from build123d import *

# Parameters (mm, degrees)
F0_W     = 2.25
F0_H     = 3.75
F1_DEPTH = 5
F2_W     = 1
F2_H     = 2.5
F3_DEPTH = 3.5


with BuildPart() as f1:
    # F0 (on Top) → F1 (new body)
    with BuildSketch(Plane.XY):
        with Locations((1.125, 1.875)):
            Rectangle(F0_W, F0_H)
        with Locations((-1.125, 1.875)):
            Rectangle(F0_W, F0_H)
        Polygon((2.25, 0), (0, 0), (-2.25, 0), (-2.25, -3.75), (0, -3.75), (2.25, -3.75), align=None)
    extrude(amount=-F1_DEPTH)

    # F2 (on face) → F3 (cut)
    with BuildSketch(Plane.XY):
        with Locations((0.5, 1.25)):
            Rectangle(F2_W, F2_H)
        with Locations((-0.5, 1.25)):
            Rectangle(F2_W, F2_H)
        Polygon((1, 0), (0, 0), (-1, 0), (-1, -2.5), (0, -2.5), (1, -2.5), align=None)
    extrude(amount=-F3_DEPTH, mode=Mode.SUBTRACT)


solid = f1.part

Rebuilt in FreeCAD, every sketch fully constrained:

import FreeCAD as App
import Part
import Sketcher

doc = App.newDocument("Part")
params = doc.addObject("Spreadsheet::Sheet", "Params")
for row, (alias, value) in enumerate([
    ("sketch1_width", "4.5 mm"),
    ("sketch1_height", "7.5 mm"),
    ("pad1_length", "5 mm"),
    ("sketch2_width", "2 mm"),
    ("sketch2_height", "5 mm"),
    ("pocket1_length", "3.5 mm"),
], start=1):
    params.set(f"A{row}", alias)
    params.set(f"B{row}", "=" + value)
    params.setAlias(f"B{row}", alias)

body = doc.addObject("PartDesign::Body", "Body")

# Sketch on XY plane
sketch1 = body.newObject("Sketcher::SketchObject", "Sketch")
sketch1.AttachmentSupport = (doc.getObject("XY_Plane"), [""])
sketch1.MapMode = "FlatFace"
sketch1.addGeometry([
    Part.LineSegment(App.Vector(2.2, 3.8, 0), App.Vector(-2.2, 3.8, 0)),
    Part.LineSegment(App.Vector(-2.2, 3.8, 0), App.Vector(-2.2, -3.8, 0)),
    Part.LineSegment(App.Vector(-2.2, -3.8, 0), App.Vector(2.2, -3.8, 0)),
    Part.LineSegment(App.Vector(2.2, -3.8, 0), App.Vector(2.2, 3.8, 0)),
], False)
sketch1.addConstraint([
    Sketcher.Constraint("Coincident", 0, 2, 1, 1),
    Sketcher.Constraint("Coincident", 1, 2, 2, 1),
    Sketcher.Constraint("Coincident", 2, 2, 3, 1),
    Sketcher.Constraint("Coincident", 3, 2, 0, 1),
    Sketcher.Constraint("Horizontal", 0),
    Sketcher.Constraint("Vertical", 1),
    Sketcher.Constraint("Horizontal", 2),
    Sketcher.Constraint("Vertical", 3),
    Sketcher.Constraint("Symmetric", 0, 2, 2, 2, -1, 1),
    Sketcher.Constraint("DistanceX", 0, 2, 0, 1, 4.5),
    Sketcher.Constraint("DistanceY", 1, 2, 1, 1, 7.5),
])
sketch1.setExpression("Constraints[9]", "Params.sketch1_width")
sketch1.setExpression("Constraints[10]", "Params.sketch1_height")
pad1 = body.newObject("PartDesign::Pad", "Pad")
pad1.Profile = sketch1
pad1.setExpression("Length", "Params.pad1_length")
pad1.Reversed = True

# Sketch on XY plane
sketch2 = body.newObject("Sketcher::SketchObject", "Sketch001")
sketch2.AttachmentSupport = (doc.getObject("XY_Plane"), [""])
sketch2.MapMode = "FlatFace"
sketch2.addGeometry([
    Part.LineSegment(App.Vector(1, 2.5, 0), App.Vector(-1, 2.5, 0)),
    Part.LineSegment(App.Vector(-1, 2.5, 0), App.Vector(-1, -2.5, 0)),
    Part.LineSegment(App.Vector(-1, -2.5, 0), App.Vector(1, -2.5, 0)),
    Part.LineSegment(App.Vector(1, -2.5, 0), App.Vector(1, 2.5, 0)),
], False)
sketch2.addConstraint([
    Sketcher.Constraint("Coincident", 0, 2, 1, 1),
    Sketcher.Constraint("Coincident", 1, 2, 2, 1),
    Sketcher.Constraint("Coincident", 2, 2, 3, 1),
    Sketcher.Constraint("Coincident", 3, 2, 0, 1),
    Sketcher.Constraint("Horizontal", 0),
    Sketcher.Constraint("Vertical", 1),
    Sketcher.Constraint("Horizontal", 2),
    Sketcher.Constraint("Vertical", 3),
    Sketcher.Constraint("Symmetric", 0, 2, 2, 2, -1, 1),
    Sketcher.Constraint("DistanceX", 0, 2, 0, 1, 2.0),
    Sketcher.Constraint("DistanceY", 1, 2, 1, 1, 5.0),
])
sketch2.setExpression("Constraints[9]", "Params.sketch2_width")
sketch2.setExpression("Constraints[10]", "Params.sketch2_height")
pocket1 = body.newObject("PartDesign::Pocket", "Pocket")
pocket1.Profile = sketch2
pocket1.setExpression("Length", "Params.pocket1_length")

doc.recompute()
